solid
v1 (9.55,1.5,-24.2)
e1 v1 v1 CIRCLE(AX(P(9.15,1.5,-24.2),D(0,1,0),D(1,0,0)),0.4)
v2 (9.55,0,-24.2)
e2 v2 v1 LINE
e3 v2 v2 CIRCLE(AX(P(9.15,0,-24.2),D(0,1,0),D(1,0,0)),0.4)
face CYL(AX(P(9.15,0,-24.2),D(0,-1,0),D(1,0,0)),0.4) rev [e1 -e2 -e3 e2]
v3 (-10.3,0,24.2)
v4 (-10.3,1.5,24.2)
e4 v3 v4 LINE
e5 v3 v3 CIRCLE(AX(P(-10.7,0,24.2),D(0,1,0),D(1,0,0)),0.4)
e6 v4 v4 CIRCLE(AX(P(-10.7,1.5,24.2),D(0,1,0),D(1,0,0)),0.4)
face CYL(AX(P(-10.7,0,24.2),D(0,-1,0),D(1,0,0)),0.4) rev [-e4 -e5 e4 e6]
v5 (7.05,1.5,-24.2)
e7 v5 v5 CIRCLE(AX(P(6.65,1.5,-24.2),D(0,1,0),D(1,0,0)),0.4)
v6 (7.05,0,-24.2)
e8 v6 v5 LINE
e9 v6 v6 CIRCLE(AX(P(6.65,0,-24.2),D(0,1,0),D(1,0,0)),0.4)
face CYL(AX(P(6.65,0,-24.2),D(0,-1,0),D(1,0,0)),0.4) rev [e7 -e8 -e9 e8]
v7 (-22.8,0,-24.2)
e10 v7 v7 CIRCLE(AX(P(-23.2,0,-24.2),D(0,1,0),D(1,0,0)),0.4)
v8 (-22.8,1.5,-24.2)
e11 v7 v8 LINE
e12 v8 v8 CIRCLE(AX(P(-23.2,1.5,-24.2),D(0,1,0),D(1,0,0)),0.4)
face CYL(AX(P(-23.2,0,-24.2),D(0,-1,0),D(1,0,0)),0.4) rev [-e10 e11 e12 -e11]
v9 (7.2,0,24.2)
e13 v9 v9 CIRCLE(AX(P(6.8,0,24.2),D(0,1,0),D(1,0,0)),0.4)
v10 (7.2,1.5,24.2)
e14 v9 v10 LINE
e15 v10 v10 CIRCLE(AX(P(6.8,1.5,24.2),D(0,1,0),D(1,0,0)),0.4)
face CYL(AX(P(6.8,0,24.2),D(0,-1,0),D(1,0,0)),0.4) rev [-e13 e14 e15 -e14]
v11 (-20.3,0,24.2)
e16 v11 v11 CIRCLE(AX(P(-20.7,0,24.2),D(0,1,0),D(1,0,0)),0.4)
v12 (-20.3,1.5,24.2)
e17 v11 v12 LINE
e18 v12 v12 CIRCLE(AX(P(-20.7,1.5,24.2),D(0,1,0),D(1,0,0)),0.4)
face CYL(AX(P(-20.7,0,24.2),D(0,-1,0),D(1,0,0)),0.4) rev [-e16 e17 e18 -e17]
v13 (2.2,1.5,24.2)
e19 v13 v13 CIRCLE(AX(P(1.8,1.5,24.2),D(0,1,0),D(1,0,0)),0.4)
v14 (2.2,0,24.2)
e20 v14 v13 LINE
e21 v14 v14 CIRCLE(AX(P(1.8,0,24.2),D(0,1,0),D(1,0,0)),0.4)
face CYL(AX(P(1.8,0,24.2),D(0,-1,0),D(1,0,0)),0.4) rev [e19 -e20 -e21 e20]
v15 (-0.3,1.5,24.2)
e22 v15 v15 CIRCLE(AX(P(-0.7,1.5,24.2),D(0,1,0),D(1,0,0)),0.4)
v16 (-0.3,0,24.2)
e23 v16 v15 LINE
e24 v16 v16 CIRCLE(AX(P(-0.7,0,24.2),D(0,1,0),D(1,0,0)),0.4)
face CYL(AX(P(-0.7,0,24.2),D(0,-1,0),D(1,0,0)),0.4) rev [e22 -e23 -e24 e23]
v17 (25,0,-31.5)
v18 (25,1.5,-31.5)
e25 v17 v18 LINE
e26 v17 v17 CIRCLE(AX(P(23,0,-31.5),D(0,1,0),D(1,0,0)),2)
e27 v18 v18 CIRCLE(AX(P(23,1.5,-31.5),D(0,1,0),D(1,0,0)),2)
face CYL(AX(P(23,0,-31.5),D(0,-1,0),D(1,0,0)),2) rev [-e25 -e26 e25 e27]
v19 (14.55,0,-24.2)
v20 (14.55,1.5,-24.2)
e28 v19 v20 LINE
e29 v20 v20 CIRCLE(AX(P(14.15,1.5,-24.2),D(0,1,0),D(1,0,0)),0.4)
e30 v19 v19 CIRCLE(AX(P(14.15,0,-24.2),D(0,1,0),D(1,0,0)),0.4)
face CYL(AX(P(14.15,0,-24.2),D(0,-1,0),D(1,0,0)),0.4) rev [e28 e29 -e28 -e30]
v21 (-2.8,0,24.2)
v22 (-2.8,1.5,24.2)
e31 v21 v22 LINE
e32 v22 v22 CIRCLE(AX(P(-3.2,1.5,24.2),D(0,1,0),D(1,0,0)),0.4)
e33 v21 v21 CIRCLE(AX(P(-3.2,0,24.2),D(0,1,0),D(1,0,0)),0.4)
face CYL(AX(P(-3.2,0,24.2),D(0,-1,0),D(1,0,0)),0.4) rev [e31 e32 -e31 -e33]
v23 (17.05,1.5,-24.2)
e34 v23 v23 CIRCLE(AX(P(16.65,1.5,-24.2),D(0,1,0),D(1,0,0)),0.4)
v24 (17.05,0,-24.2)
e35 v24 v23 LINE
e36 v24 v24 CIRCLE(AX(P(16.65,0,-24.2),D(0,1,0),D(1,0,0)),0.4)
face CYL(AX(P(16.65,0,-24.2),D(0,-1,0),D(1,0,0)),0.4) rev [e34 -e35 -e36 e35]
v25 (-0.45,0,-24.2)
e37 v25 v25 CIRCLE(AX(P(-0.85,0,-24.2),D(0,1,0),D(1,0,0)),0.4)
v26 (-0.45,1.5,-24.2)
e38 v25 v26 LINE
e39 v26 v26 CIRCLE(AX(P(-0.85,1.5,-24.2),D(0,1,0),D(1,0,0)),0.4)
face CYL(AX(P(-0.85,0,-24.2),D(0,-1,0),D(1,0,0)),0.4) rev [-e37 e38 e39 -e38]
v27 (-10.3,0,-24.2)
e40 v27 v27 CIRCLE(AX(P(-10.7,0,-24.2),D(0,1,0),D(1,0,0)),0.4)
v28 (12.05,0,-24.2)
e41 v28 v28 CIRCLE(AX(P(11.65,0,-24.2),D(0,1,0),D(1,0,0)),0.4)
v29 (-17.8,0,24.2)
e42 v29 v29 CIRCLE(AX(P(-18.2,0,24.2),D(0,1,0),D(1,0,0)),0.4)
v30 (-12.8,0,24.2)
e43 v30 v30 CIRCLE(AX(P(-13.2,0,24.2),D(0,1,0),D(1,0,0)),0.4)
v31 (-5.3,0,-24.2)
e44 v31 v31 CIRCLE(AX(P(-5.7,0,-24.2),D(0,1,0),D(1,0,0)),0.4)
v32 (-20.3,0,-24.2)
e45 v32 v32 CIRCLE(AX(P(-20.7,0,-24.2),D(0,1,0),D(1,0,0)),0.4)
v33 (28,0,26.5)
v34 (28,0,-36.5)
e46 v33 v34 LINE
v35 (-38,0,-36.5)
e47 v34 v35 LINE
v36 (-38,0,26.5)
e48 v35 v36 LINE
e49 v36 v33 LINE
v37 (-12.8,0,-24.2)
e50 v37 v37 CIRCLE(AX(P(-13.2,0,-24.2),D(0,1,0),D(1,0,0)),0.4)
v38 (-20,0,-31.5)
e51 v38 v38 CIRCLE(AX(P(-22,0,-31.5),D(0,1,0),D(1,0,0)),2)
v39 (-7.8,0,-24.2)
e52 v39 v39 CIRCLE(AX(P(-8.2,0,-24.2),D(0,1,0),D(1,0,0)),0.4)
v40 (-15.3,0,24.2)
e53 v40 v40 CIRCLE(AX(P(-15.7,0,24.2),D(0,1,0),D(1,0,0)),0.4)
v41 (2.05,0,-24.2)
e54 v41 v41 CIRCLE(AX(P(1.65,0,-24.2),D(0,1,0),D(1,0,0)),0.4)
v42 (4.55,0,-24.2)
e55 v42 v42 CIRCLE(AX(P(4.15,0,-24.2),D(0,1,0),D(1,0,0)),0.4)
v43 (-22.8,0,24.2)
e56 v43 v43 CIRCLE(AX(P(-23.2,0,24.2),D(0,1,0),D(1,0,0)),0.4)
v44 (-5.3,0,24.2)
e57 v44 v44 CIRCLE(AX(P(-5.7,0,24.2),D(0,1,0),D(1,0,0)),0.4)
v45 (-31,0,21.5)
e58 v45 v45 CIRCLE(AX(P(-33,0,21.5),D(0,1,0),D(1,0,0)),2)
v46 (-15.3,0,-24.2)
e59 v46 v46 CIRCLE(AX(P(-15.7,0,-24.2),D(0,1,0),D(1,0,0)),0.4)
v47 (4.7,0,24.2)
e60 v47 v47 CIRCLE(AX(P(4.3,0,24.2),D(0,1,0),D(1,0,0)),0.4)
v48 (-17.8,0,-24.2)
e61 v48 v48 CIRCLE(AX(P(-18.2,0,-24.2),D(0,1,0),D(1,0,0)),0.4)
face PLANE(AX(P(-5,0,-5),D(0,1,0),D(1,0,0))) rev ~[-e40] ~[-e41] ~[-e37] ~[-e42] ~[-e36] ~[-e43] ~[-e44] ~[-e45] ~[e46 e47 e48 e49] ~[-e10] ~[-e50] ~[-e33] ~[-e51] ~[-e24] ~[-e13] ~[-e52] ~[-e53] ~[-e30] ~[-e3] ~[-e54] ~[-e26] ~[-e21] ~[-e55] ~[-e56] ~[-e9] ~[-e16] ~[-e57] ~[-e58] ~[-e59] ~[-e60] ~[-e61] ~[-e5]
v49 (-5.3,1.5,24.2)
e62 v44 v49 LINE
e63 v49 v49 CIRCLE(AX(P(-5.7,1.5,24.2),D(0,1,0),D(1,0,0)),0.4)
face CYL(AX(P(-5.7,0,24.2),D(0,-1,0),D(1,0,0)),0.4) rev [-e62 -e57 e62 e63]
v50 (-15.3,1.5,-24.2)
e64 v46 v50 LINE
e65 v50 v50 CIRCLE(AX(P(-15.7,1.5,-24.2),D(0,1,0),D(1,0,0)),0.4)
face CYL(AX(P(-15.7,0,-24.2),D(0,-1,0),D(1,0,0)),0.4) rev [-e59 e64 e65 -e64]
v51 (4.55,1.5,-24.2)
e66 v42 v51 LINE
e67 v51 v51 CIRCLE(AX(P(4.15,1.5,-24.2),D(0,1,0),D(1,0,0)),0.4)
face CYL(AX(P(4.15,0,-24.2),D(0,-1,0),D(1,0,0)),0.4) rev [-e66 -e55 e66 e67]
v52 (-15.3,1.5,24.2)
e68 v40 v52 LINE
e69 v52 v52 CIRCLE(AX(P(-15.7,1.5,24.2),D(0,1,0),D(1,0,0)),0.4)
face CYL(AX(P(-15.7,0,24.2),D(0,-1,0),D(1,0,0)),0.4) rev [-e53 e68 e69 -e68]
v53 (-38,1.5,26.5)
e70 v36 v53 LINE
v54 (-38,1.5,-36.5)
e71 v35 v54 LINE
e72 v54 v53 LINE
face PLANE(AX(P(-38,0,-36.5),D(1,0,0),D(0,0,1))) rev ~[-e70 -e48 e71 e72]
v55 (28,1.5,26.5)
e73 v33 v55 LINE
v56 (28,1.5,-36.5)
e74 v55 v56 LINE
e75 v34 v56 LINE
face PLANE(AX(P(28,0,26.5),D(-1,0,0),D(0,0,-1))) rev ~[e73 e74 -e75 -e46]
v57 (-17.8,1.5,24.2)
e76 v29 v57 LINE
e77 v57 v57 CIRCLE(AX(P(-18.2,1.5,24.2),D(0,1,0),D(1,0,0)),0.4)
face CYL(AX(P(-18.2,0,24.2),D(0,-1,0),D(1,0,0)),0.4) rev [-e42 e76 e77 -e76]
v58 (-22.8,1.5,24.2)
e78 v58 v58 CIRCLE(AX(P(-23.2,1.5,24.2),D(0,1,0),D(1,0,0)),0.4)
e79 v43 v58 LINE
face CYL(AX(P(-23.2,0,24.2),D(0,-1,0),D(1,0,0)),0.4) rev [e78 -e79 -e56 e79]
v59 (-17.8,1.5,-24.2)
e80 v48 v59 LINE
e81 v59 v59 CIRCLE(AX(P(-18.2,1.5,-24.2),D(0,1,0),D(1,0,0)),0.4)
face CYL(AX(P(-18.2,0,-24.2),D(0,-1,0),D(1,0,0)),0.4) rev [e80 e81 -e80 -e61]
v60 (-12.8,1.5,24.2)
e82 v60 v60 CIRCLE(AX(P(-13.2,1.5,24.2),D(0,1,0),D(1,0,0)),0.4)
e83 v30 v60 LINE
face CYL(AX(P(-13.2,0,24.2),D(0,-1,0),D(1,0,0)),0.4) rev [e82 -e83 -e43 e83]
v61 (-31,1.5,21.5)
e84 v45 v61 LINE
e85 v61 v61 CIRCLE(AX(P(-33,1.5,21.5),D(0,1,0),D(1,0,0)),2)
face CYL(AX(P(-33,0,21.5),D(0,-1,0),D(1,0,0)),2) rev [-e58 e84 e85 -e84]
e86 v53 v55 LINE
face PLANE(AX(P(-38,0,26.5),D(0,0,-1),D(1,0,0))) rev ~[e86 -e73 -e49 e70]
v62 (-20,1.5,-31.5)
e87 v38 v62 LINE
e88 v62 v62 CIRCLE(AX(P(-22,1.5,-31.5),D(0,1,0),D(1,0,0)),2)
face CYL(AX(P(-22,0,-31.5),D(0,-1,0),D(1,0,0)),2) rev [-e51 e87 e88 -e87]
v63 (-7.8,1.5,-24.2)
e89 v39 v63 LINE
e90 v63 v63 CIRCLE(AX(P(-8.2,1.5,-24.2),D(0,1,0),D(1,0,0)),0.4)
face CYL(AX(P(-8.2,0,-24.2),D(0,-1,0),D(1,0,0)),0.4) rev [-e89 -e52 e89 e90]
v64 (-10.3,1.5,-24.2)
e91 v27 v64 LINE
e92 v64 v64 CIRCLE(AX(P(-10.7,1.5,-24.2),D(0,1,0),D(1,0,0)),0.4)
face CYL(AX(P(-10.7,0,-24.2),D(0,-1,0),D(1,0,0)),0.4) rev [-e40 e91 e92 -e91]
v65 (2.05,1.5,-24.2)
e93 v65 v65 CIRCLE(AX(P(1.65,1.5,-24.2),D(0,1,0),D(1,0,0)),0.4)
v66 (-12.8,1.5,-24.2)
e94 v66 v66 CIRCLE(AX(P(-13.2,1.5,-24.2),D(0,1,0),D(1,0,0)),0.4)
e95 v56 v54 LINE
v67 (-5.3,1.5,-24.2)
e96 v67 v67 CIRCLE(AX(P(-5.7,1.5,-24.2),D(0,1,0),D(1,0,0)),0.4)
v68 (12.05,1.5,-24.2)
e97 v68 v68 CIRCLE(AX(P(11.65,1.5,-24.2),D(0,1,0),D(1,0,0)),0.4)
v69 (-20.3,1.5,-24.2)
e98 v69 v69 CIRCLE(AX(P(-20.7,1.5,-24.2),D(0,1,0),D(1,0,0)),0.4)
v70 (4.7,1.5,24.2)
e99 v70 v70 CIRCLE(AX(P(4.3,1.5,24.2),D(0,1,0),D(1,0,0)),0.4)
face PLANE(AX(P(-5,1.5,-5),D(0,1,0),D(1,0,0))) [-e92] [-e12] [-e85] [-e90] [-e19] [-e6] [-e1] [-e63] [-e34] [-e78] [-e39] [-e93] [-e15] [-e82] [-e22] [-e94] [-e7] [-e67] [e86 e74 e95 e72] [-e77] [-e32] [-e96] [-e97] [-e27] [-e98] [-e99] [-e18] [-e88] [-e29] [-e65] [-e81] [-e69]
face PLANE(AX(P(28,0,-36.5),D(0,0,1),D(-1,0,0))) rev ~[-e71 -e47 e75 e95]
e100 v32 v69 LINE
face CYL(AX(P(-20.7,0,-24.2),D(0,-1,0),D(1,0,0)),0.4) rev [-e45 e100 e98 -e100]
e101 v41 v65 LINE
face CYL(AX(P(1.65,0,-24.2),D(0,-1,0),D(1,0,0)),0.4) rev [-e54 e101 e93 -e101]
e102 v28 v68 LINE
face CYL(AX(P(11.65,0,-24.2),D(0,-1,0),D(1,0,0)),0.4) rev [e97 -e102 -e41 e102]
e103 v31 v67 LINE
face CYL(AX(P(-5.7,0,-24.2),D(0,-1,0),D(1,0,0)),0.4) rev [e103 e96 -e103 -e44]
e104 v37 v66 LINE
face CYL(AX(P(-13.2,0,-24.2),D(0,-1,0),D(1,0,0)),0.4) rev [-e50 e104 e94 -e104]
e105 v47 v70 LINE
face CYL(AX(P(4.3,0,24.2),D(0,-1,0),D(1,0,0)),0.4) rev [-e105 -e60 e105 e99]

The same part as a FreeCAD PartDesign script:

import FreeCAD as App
import Part
import Sketcher
from FreeCAD import Vector


def add_polygon(sketch, points):
    """Adds a closed chain of lines whose ends are joined by coincident constraints."""
    first, n = sketch.GeometryCount, len(points)
    for a, b in zip(points, points[1:] + points[:1]):
        sketch.addGeometry(Part.LineSegment(App.Vector(*a, 0), App.Vector(*b, 0)), False)
    for i in range(n):
        sketch.addConstraint(Sketcher.Constraint("Coincident", first + i, 2, first + (i + 1) % n, 1))

doc = App.newDocument("Part")
body = doc.addObject("PartDesign::Body", "Body")

sketch1 = body.newObject("Sketcher::SketchObject", "Sketch")
sketch1.AttachmentSupport = (doc.getObject("XZ_Plane"), [""])
sketch1.MapMode = "FlatFace"
add_polygon(sketch1, [(28, 26.5), (28, -36.5), (-38, -36.5), (-38, 26.5)])
sketch1.addGeometry(Part.Circle(Vector(-33, 21.5, 0), Vector(0, 0, 1), 2), False)
sketch1.addGeometry(Part.Circle(Vector(-23.2, 24.2, 0), Vector(0, 0, 1), 0.4), False)
sketch1.addGeometry(Part.Circle(Vector(-20.7, 24.2, 0), Vector(0, 0, 1), 0.4), False)
sketch1.addGeometry(Part.Circle(Vector(-18.2, 24.2, 0), Vector(0, 0, 1), 0.4), False)
sketch1.addGeometry(Part.Circle(Vector(-15.7, 24.2, 0), Vector(0, 0, 1), 0.4), False)
sketch1.addGeometry(Part.Circle(Vector(-13.2, 24.2, 0), Vector(0, 0, 1), 0.4), False)
sketch1.addGeometry(Part.Circle(Vector(-10.7, 24.2, 0), Vector(0, 0, 1), 0.4), False)
sketch1.addGeometry(Part.Circle(Vector(-5.7, 24.2, 0), Vector(0, 0, 1), 0.4), False)
sketch1.addGeometry(Part.Circle(Vector(-3.2, 24.2, 0), Vector(0, 0, 1), 0.4), False)
sketch1.addGeometry(Part.Circle(Vector(-0.7, 24.2, 0), Vector(0, 0, 1), 0.4), False)
sketch1.addGeometry(Part.Circle(Vector(1.8, 24.2, 0), Vector(0, 0, 1), 0.4), False)
sketch1.addGeometry(Part.Circle(Vector(4.3, 24.2, 0), Vector(0, 0, 1), 0.4), False)
sketch1.addGeometry(Part.Circle(Vector(6.8, 24.2, 0), Vector(0, 0, 1), 0.4), False)
sketch1.addGeometry(Part.Circle(Vector(-23.2, -24.2, 0), Vector(0, 0, 1), 0.4), False)
sketch1.addGeometry(Part.Circle(Vector(-20.7, -24.2, 0), Vector(0, 0, 1), 0.4), False)
sketch1.addGeometry(Part.Circle(Vector(-22, -31.5, 0), Vector(0, 0, 1), 2), False)
sketch1.addGeometry(Part.Circle(Vector(-18.2, -24.2, 0), Vector(0, 0, 1), 0.4), False)
sketch1.addGeometry(Part.Circle(Vector(-15.7, -24.2, 0), Vector(0, 0, 1), 0.4), False)
sketch1.addGeometry(Part.Circle(Vector(-13.2, -24.2, 0), Vector(0, 0, 1), 0.4), False)
sketch1.addGeometry(Part.Circle(Vector(-10.7, -24.2, 0), Vector(0, 0, 1), 0.4), False)
sketch1.addGeometry(Part.Circle(Vector(-8.2, -24.2, 0), Vector(0, 0, 1), 0.4), False)
sketch1.addGeometry(Part.Circle(Vector(-5.7, -24.2, 0), Vector(0, 0, 1), 0.4), False)
sketch1.addGeometry(Part.Circle(Vector(-0.85, -24.2, 0), Vector(0, 0, 1), 0.4), False)
sketch1.addGeometry(Part.Circle(Vector(1.65, -24.2, 0), Vector(0, 0, 1), 0.4), False)
sketch1.addGeometry(Part.Circle(Vector(4.15, -24.2, 0), Vector(0, 0, 1), 0.4), False)
sketch1.addGeometry(Part.Circle(Vector(6.65, -24.2, 0), Vector(0, 0, 1), 0.4), False)
sketch1.addGeometry(Part.Circle(Vector(9.15, -24.2, 0), Vector(0, 0, 1), 0.4), False)
sketch1.addGeometry(Part.Circle(Vector(11.65, -24.2, 0), Vector(0, 0, 1), 0.4), False)
sketch1.addGeometry(Part.Circle(Vector(14.15, -24.2, 0), Vector(0, 0, 1), 0.4), False)
sketch1.addGeometry(Part.Circle(Vector(16.65, -24.2, 0), Vector(0, 0, 1), 0.4), False)
sketch1.addGeometry(Part.Circle(Vector(23, -31.5, 0), Vector(0, 0, 1), 2), False)
sketch1.addConstraint([
    Sketcher.Constraint("Vertical", 0),
    Sketcher.Constraint("Horizontal", 1),
    Sketcher.Constraint("Vertical", 2),
    Sketcher.Constraint("Horizontal", 3),
    Sketcher.Constraint("Equal", 5, 6),
    Sketcher.Constraint("Equal", 6, 7),
    Sketcher.Constraint("Equal", 7, 8),
    Sketcher.Constraint("Equal", 8, 9),
    Sketcher.Constraint("Equal", 9, 10),
    Sketcher.Constraint("Equal", 10, 11),
    Sketcher.Constraint("Equal", 11, 12),
    Sketcher.Constraint("Equal", 12, 13),
    Sketcher.Constraint("Equal", 13, 14),
    Sketcher.Constraint("Equal", 14, 15),
    Sketcher.Constraint("Equal", 15, 16),
    Sketcher.Constraint("Equal", 16, 17),
    Sketcher.Constraint("Equal", 17, 18),
    Sketcher.Constraint("Equal", 4, 19),
    Sketcher.Constraint("Equal", 18, 20),
    Sketcher.Constraint("Equal", 20, 21),
    Sketcher.Constraint("Equal", 21, 22),
    Sketcher.Constraint("Equal", 22, 23),
    Sketcher.Constraint("Equal", 23, 24),
    Sketcher.Constraint("Equal", 24, 25),
    Sketcher.Constraint("Equal", 25, 26),
    Sketcher.Constraint("Equal", 26, 27),
    Sketcher.Constraint("Equal", 27, 28),
    Sketcher.Constraint("Equal", 28, 29),
    Sketcher.Constraint("Equal", 29, 30),
    Sketcher.Constraint("Equal", 30, 31),
    Sketcher.Constraint("Equal", 31, 32),
    Sketcher.Constraint("Equal", 32, 33),
    Sketcher.Constraint("Equal", 19, 34),
    Sketcher.Constraint("Symmetric", 5, 3, 17, 3, -1),
    Sketcher.Constraint("Symmetric", 6, 3, 18, 3, -1),
    Sketcher.Constraint("Symmetric", 7, 3, 20, 3, -1),
    Sketcher.Constraint("Symmetric", 8, 3, 21, 3, -1),
    Sketcher.Constraint("Symmetric", 9, 3, 22, 3, -1),
    Sketcher.Constraint("Symmetric", 10, 3, 23, 3, -1),
    Sketcher.Constraint("Symmetric", 11, 3, 25, 3, -1),
    Sketcher.Constraint("Horizontal", 5, 3, 6, 3),
    Sketcher.Constraint("Horizontal", 6, 3, 7, 3),
    Sketcher.Constraint("Horizontal", 7, 3, 8, 3),
    Sketcher.Constraint("Horizontal", 8, 3, 9, 3),
    Sketcher.Constraint("Horizontal", 9, 3, 10, 3),
    Sketcher.Constraint("Horizontal", 10, 3, 11, 3),
    Sketcher.Constraint("Horizontal", 11, 3, 12, 3),
    Sketcher.Constraint("Horizontal", 12, 3, 13, 3),
    Sketcher.Constraint("Horizontal", 13, 3, 14, 3),
    Sketcher.Constraint("Horizontal", 14, 3, 15, 3),
    Sketcher.Constraint("Horizontal", 15, 3, 16, 3),
    Sketcher.Constraint("Horizontal", 23, 3, 24, 3),
    Sketcher.Constraint("Horizontal", 25, 3, 26, 3),
    Sketcher.Constraint("Horizontal", 26, 3, 27, 3),
    Sketcher.Constraint("Horizontal", 27, 3, 28, 3),
    Sketcher.Constraint("Horizontal", 28, 3, 29, 3),
    Sketcher.Constraint("Horizontal", 29, 3, 30, 3),
    Sketcher.Constraint("Horizontal", 30, 3, 31, 3),
    Sketcher.Constraint("Horizontal", 31, 3, 32, 3),
    Sketcher.Constraint("Horizontal", 32, 3, 33, 3),
    Sketcher.Constraint("Horizontal", 19, 3, 34, 3),
    Sketcher.Constraint("Diameter", 4, 4.0),
    Sketcher.Constraint("Diameter", 5, 0.8),
    Sketcher.Constraint("DistanceX", 1, 2, 1, 1, 66.0),
    Sketcher.Constraint("DistanceY", 0, 2, 0, 1, 63.0),
    Sketcher.Constraint("DistanceX", 4, 3, -1, 1, 33.0),
    Sketcher.Constraint("DistanceX", 19, 3, -1, 1, 22.0),
    Sketcher.Constraint("DistanceX", -1, 1, 34, 3, 23.0),
    Sketcher.Constraint("DistanceX", -1, 1, 0, 2, 28.0),
    Sketcher.Constraint("DistanceX", 5, 3, 7, 3, 5.0),
    Sketcher.Constraint("DistanceX", 6, 3, 8, 3, 5.0),
    Sketcher.Constraint("DistanceX", 7, 3, 9, 3, 5.0),
    Sketcher.Constraint("DistanceX", 8, 3, 10, 3, 5.0),
    Sketcher.Constraint("DistanceX", 10, 3, 11, 3, 5.0),
    Sketcher.Constraint("DistanceX", 9, 3, 12, 3, 10.0),
    Sketcher.Constraint("DistanceX", 11, 3, 13, 3, 5.0),
    Sketcher.Constraint("DistanceX", 12, 3, 14, 3, 5.0),
    Sketcher.Constraint("DistanceX", 13, 3, 15, 3, 5.0),
    Sketcher.Constraint("DistanceX", 14, 3, 16, 3, 5.0),
    Sketcher.Constraint("DistanceY", 19, 3, 4, 3, 53.0),
    Sketcher.Constraint("DistanceX", 22, 3, 24, 3, 5.0),
    Sketcher.Constraint("DistanceX", 26, 3, 28, 3, 5.0),
    Sketcher.Constraint("DistanceX", 27, 3, 29, 3, 5.0),
    Sketcher.Constraint("DistanceX", 28, 3, 30, 3, 5.0),
    Sketcher.Constraint("DistanceX", 29, 3, 31, 3, 5.0),
    Sketcher.Constraint("DistanceX", 30, 3, 32, 3, 5.0),
    Sketcher.Constraint("DistanceX", 31, 3, 33, 3, 5.0),
    Sketcher.Constraint("DistanceY", 0, 2, 34, 3, 5.0),
    Sketcher.Constraint("DistanceY", -1, 1, 4, 3, 21.5),
    Sketcher.Constraint("DistanceX", 5, 3, -1, 1, 23.2),
    Sketcher.Constraint("DistanceY", -1, 1, 5, 3, 24.2),
    Sketcher.Constraint("DistanceX", 6, 3, -1, 1, 20.7),
    Sketcher.Constraint("DistanceX", 26, 3, 27, 3, 2.5),
    Sketcher.Constraint("DistanceX", 26, 3, -1, 1, 0.85),
])
pad1 = body.newObject("PartDesign::Pad", "Pad")
pad1.Profile = sketch1
pad1.Length = 1.5
pad1.Reversed = True

doc.recompute()
